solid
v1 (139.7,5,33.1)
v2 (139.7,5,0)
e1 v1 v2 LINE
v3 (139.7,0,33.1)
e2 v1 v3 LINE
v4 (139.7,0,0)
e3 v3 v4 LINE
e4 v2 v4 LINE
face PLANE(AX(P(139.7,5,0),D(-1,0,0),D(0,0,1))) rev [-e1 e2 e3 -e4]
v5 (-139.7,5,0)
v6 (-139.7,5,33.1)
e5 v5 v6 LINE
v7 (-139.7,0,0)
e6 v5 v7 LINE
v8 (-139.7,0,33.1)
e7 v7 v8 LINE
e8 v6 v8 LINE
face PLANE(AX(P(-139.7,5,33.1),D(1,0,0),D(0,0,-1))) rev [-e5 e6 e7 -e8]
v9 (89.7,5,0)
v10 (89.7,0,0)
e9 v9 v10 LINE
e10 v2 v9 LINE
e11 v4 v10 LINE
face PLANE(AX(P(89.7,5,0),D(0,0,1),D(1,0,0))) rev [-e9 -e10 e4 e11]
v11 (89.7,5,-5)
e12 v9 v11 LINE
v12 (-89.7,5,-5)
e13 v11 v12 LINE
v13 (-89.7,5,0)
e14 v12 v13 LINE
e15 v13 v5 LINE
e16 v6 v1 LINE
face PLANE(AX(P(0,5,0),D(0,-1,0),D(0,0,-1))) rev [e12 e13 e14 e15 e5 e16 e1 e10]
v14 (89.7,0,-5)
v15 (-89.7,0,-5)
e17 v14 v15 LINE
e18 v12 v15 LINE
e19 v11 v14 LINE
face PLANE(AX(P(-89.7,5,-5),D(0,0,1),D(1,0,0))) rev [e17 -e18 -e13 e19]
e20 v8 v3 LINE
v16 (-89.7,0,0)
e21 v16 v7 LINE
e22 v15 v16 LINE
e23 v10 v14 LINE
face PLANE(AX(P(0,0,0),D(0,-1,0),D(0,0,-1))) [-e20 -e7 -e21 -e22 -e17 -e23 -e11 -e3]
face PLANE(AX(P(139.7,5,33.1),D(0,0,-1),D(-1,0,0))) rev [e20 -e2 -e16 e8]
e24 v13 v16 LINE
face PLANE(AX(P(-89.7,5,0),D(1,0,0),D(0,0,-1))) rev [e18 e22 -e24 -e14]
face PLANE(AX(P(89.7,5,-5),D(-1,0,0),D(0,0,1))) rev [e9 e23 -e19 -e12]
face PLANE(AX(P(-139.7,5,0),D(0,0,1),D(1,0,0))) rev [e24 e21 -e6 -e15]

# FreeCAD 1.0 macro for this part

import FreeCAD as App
import Part
import Sketcher

V = App.Vector
Q = App.Units.Quantity


def add_polygon(sketch, points):
    """Adds a closed chain of lines whose ends are joined by coincident constraints."""
    first, n = sketch.GeometryCount, len(points)
    for a, b in zip(points, points[1:] + points[:1]):
        sketch.addGeometry(Part.LineSegment(App.Vector(*a, 0), App.Vector(*b, 0)), False)
    for i in range(n):
        sketch.addConstraint(Sketcher.Constraint("Coincident", first + i, 2, first + (i + 1) % n, 1))

doc = App.newDocument("Part")
params = doc.addObject("Spreadsheet::Sheet", "Params")
for row, (alias, value) in enumerate([
    ("sketch1_width", "50 mm"),
    ("sketch1_height", "5 mm"),
    ("sketch1_width2", "279.4 mm"),
    ("sketch1_height2", "33.1 mm"),
    ("pad1_length", "5 mm"),
], start=1):
    params.set(f"A{row}", alias)
    params.set(f"B{row}", "=" + value)
    params.setAlias(f"B{row}", alias)

body = doc.addObject("PartDesign::Body", "Body")

# Sketch on XZ plane
sketch1 = body.newObject("Sketcher::SketchObject", "Sketch")
sketch1.AttachmentSupport = (doc.getObject("XZ_Plane"), [""])
sketch1.MapMode = "FlatFace"
add_polygon(sketch1, [(-139.7, 0), (-139.7, 33.1), (139.7, 33.1), (139.7, 0), (89.7, 0), (89.7, -5), (-89.7, -5), (-89.7, 0)])  # lines 0-7
sketch1.addConstraint(Sketcher.Constraint("Vertical", 0))
sketch1.addConstraint(Sketcher.Constraint("Horizontal", 1))
sketch1.addConstraint(Sketcher.Constraint("Vertical", 2))
sketch1.addConstraint(Sketcher.Constraint("Horizontal", 3))
sketch1.addConstraint(Sketcher.Constraint("Vertical", 4))
sketch1.addConstraint(Sketcher.Constraint("Horizontal", 5))
sketch1.addConstraint(Sketcher.Constraint("Vertical", 6))
sketch1.addConstraint(Sketcher.Constraint("Horizontal", 7))
sketch1.addConstraint(Sketcher.Constraint("Symmetric", 3, 2, 6, 2, -1, 1))
sketch1.addConstraint(Sketcher.Constraint("Symmetric", 2, 2, 7, 2, -2))
sketch1.addConstraint(Sketcher.Constraint("DistanceX", 3, 2, 3, 1, Q("50 mm")))
sketch1.addConstraint(Sketcher.Constraint("DistanceY", 4, 2, 4, 1, Q("5 mm")))
sketch1.addConstraint(Sketcher.Constraint("DistanceX", 1, 1, 1, 2, Q("279.4 mm")))
sketch1.addConstraint(Sketcher.Constraint("DistanceY", 0, 1, 0, 2, Q("33.1 mm")))
sketch1.setExpression("Constraints[18]", "Params.sketch1_width")
sketch1.setExpression("Constraints[19]", "Params.sketch1_height")
sketch1.setExpression("Constraints[20]", "Params.sketch1_width2")
sketch1.setExpression("Constraints[21]", "Params.sketch1_height2")
pad1 = body.newObject("PartDesign::Pad", "Pad")
pad1.Profile = sketch1
pad1.setExpression("Length", "Params.pad1_length")
pad1.Reversed = True

doc.recompute()
